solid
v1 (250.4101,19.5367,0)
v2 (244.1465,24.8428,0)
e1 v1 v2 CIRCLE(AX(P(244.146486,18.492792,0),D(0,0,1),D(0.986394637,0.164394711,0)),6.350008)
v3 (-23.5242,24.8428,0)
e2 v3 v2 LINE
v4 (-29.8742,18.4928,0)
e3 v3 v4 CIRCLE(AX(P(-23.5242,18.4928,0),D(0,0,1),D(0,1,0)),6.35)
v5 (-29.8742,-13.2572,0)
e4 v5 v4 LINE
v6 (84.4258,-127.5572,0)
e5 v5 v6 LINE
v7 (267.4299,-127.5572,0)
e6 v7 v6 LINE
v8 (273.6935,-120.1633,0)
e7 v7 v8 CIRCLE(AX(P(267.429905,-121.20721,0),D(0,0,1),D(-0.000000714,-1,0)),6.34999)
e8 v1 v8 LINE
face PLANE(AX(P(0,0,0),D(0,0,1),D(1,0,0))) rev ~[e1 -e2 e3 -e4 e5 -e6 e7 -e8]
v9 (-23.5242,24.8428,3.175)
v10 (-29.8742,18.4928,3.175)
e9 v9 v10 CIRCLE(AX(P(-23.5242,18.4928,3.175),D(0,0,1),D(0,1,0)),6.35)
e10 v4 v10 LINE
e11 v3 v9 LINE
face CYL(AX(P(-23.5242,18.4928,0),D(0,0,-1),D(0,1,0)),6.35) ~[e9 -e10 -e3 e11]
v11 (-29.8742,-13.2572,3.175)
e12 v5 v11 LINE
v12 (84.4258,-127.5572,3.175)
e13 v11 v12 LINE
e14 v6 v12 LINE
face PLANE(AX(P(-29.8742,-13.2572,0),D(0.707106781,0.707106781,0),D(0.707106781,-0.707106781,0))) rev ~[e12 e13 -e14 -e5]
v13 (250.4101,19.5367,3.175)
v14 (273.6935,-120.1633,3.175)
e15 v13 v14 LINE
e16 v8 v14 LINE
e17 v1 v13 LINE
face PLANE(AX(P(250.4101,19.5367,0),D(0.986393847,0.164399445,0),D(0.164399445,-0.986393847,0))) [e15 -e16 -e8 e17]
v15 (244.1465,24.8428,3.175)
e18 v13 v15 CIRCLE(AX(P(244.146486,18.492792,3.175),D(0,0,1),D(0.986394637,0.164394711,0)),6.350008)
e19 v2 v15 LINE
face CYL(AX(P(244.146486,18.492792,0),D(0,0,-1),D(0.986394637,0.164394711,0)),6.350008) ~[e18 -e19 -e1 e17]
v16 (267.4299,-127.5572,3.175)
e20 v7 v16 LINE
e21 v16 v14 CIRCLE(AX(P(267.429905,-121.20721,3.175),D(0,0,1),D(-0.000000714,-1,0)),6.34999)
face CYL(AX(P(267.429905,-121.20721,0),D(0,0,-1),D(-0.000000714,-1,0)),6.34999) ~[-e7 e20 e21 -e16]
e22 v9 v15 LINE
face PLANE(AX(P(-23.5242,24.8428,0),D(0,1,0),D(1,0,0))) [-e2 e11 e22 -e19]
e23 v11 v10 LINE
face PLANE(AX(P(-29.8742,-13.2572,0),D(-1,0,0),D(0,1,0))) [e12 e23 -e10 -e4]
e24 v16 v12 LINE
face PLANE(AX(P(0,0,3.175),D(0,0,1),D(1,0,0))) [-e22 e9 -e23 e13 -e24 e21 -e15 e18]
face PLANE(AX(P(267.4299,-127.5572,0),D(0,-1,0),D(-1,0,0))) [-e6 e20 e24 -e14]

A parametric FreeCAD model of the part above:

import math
import FreeCAD as App
import Part
import Sketcher
from FreeCAD import Vector
Q = App.Units.Quantity

doc = App.newDocument("Part")
body = doc.addObject("PartDesign::Body", "Body")

# Sketch on XY plane
sketch1 = body.newObject("Sketcher::SketchObject", "Sketch")
sketch1.AttachmentSupport = (doc.getObject("XY_Plane"), [""])
sketch1.MapMode = "FlatFace"
sketch1.addGeometry(Part.LineSegment(Vector(244.1465, 24.8428, 0), Vector(-23.5242, 24.8428, 0)), False)
sketch1.addGeometry(Part.ArcOfCircle(Part.Circle(Vector(-23.5242, 18.4928, 0), Vector(0, 0, 1), 6.35), math.radians(90), math.radians(180)), False)
sketch1.addGeometry(Part.LineSegment(Vector(-29.8742, 18.4928, 0), Vector(-29.8742, -13.2572, 0)), False)
sketch1.addGeometry(Part.LineSegment(Vector(-29.8742, -13.2572, 0), Vector(84.4258, -127.5572, 0)), False)
sketch1.addGeometry(Part.LineSegment(Vector(84.4258, -127.5572, 0), Vector(267.4299, -127.5572, 0)), False)
sketch1.addGeometry(Part.ArcOfCircle(Part.Circle(Vector(267.4299, -121.2072, 0), Vector(0, 0, 1), 6.35), math.radians(-90), math.radians(9.462026)), False)
sketch1.addGeometry(Part.LineSegment(Vector(273.6935, -120.1633, 0), Vector(250.4101, 19.5367, 0)), False)
sketch1.addGeometry(Part.ArcOfCircle(Part.Circle(Vector(244.1465, 18.4928, 0), Vector(0, 0, 1), 6.349993), math.radians(9.462026), math.radians(90)), False)
sketch1.addConstraint(Sketcher.Constraint("Tangent", 0, 2, 1, 1))
sketch1.addConstraint(Sketcher.Constraint("Tangent", 1, 2, 2, 1))
sketch1.addConstraint(Sketcher.Constraint("Coincident", 2, 2, 3, 1))
sketch1.addConstraint(Sketcher.Constraint("Coincident", 3, 2, 4, 1))
sketch1.addConstraint(Sketcher.Constraint("Tangent", 4, 2, 5, 1))
sketch1.addConstraint(Sketcher.Constraint("Tangent", 5, 2, 6, 1))
sketch1.addConstraint(Sketcher.Constraint("Tangent", 6, 2, 7, 1))
sketch1.addConstraint(Sketcher.Constraint("Tangent", 7, 2, 0, 1))
sketch1.addConstraint(Sketcher.Constraint("Horizontal", 0))
sketch1.addConstraint(Sketcher.Constraint("Vertical", 2))
sketch1.addConstraint(Sketcher.Constraint("Horizontal", 4))
sketch1.addConstraint(Sketcher.Constraint("Equal", 1, 5))
sketch1.addConstraint(Sketcher.Constraint("Equal", 5, 7))
sketch1.addConstraint(Sketcher.Constraint("Radius", 1, Q("0.25 in")))
sketch1.addConstraint(Sketcher.Constraint("DistanceY", 3, 2, 0, 2, Q("6 in")))
sketch1.addConstraint(Sketcher.Constraint("DistanceY", 2, 2, 0, 2, Q("1.5 in")))
sketch1.addConstraint(Sketcher.Constraint("Angle", 3, Q("-45 deg")))
sketch1.addConstraint(Sketcher.Constraint("DistanceX", 0, 2, 0, 1, 267.6707))
sketch1.addConstraint(Sketcher.Constraint("DistanceX", 4, 1, 4, 2, 183.004))
sketch1.addConstraint(Sketcher.Constraint("DistanceX", 1, 3, -1, 1, 23.5242))
sketch1.addConstraint(Sketcher.Constraint("DistanceY", -1, 1, 1, 3, 18.4928))
pad1 = body.newObject("PartDesign::Pad", "Pad")
pad1.Profile = sketch1
pad1.Length = Q("0.125 in")

doc.recompute()
